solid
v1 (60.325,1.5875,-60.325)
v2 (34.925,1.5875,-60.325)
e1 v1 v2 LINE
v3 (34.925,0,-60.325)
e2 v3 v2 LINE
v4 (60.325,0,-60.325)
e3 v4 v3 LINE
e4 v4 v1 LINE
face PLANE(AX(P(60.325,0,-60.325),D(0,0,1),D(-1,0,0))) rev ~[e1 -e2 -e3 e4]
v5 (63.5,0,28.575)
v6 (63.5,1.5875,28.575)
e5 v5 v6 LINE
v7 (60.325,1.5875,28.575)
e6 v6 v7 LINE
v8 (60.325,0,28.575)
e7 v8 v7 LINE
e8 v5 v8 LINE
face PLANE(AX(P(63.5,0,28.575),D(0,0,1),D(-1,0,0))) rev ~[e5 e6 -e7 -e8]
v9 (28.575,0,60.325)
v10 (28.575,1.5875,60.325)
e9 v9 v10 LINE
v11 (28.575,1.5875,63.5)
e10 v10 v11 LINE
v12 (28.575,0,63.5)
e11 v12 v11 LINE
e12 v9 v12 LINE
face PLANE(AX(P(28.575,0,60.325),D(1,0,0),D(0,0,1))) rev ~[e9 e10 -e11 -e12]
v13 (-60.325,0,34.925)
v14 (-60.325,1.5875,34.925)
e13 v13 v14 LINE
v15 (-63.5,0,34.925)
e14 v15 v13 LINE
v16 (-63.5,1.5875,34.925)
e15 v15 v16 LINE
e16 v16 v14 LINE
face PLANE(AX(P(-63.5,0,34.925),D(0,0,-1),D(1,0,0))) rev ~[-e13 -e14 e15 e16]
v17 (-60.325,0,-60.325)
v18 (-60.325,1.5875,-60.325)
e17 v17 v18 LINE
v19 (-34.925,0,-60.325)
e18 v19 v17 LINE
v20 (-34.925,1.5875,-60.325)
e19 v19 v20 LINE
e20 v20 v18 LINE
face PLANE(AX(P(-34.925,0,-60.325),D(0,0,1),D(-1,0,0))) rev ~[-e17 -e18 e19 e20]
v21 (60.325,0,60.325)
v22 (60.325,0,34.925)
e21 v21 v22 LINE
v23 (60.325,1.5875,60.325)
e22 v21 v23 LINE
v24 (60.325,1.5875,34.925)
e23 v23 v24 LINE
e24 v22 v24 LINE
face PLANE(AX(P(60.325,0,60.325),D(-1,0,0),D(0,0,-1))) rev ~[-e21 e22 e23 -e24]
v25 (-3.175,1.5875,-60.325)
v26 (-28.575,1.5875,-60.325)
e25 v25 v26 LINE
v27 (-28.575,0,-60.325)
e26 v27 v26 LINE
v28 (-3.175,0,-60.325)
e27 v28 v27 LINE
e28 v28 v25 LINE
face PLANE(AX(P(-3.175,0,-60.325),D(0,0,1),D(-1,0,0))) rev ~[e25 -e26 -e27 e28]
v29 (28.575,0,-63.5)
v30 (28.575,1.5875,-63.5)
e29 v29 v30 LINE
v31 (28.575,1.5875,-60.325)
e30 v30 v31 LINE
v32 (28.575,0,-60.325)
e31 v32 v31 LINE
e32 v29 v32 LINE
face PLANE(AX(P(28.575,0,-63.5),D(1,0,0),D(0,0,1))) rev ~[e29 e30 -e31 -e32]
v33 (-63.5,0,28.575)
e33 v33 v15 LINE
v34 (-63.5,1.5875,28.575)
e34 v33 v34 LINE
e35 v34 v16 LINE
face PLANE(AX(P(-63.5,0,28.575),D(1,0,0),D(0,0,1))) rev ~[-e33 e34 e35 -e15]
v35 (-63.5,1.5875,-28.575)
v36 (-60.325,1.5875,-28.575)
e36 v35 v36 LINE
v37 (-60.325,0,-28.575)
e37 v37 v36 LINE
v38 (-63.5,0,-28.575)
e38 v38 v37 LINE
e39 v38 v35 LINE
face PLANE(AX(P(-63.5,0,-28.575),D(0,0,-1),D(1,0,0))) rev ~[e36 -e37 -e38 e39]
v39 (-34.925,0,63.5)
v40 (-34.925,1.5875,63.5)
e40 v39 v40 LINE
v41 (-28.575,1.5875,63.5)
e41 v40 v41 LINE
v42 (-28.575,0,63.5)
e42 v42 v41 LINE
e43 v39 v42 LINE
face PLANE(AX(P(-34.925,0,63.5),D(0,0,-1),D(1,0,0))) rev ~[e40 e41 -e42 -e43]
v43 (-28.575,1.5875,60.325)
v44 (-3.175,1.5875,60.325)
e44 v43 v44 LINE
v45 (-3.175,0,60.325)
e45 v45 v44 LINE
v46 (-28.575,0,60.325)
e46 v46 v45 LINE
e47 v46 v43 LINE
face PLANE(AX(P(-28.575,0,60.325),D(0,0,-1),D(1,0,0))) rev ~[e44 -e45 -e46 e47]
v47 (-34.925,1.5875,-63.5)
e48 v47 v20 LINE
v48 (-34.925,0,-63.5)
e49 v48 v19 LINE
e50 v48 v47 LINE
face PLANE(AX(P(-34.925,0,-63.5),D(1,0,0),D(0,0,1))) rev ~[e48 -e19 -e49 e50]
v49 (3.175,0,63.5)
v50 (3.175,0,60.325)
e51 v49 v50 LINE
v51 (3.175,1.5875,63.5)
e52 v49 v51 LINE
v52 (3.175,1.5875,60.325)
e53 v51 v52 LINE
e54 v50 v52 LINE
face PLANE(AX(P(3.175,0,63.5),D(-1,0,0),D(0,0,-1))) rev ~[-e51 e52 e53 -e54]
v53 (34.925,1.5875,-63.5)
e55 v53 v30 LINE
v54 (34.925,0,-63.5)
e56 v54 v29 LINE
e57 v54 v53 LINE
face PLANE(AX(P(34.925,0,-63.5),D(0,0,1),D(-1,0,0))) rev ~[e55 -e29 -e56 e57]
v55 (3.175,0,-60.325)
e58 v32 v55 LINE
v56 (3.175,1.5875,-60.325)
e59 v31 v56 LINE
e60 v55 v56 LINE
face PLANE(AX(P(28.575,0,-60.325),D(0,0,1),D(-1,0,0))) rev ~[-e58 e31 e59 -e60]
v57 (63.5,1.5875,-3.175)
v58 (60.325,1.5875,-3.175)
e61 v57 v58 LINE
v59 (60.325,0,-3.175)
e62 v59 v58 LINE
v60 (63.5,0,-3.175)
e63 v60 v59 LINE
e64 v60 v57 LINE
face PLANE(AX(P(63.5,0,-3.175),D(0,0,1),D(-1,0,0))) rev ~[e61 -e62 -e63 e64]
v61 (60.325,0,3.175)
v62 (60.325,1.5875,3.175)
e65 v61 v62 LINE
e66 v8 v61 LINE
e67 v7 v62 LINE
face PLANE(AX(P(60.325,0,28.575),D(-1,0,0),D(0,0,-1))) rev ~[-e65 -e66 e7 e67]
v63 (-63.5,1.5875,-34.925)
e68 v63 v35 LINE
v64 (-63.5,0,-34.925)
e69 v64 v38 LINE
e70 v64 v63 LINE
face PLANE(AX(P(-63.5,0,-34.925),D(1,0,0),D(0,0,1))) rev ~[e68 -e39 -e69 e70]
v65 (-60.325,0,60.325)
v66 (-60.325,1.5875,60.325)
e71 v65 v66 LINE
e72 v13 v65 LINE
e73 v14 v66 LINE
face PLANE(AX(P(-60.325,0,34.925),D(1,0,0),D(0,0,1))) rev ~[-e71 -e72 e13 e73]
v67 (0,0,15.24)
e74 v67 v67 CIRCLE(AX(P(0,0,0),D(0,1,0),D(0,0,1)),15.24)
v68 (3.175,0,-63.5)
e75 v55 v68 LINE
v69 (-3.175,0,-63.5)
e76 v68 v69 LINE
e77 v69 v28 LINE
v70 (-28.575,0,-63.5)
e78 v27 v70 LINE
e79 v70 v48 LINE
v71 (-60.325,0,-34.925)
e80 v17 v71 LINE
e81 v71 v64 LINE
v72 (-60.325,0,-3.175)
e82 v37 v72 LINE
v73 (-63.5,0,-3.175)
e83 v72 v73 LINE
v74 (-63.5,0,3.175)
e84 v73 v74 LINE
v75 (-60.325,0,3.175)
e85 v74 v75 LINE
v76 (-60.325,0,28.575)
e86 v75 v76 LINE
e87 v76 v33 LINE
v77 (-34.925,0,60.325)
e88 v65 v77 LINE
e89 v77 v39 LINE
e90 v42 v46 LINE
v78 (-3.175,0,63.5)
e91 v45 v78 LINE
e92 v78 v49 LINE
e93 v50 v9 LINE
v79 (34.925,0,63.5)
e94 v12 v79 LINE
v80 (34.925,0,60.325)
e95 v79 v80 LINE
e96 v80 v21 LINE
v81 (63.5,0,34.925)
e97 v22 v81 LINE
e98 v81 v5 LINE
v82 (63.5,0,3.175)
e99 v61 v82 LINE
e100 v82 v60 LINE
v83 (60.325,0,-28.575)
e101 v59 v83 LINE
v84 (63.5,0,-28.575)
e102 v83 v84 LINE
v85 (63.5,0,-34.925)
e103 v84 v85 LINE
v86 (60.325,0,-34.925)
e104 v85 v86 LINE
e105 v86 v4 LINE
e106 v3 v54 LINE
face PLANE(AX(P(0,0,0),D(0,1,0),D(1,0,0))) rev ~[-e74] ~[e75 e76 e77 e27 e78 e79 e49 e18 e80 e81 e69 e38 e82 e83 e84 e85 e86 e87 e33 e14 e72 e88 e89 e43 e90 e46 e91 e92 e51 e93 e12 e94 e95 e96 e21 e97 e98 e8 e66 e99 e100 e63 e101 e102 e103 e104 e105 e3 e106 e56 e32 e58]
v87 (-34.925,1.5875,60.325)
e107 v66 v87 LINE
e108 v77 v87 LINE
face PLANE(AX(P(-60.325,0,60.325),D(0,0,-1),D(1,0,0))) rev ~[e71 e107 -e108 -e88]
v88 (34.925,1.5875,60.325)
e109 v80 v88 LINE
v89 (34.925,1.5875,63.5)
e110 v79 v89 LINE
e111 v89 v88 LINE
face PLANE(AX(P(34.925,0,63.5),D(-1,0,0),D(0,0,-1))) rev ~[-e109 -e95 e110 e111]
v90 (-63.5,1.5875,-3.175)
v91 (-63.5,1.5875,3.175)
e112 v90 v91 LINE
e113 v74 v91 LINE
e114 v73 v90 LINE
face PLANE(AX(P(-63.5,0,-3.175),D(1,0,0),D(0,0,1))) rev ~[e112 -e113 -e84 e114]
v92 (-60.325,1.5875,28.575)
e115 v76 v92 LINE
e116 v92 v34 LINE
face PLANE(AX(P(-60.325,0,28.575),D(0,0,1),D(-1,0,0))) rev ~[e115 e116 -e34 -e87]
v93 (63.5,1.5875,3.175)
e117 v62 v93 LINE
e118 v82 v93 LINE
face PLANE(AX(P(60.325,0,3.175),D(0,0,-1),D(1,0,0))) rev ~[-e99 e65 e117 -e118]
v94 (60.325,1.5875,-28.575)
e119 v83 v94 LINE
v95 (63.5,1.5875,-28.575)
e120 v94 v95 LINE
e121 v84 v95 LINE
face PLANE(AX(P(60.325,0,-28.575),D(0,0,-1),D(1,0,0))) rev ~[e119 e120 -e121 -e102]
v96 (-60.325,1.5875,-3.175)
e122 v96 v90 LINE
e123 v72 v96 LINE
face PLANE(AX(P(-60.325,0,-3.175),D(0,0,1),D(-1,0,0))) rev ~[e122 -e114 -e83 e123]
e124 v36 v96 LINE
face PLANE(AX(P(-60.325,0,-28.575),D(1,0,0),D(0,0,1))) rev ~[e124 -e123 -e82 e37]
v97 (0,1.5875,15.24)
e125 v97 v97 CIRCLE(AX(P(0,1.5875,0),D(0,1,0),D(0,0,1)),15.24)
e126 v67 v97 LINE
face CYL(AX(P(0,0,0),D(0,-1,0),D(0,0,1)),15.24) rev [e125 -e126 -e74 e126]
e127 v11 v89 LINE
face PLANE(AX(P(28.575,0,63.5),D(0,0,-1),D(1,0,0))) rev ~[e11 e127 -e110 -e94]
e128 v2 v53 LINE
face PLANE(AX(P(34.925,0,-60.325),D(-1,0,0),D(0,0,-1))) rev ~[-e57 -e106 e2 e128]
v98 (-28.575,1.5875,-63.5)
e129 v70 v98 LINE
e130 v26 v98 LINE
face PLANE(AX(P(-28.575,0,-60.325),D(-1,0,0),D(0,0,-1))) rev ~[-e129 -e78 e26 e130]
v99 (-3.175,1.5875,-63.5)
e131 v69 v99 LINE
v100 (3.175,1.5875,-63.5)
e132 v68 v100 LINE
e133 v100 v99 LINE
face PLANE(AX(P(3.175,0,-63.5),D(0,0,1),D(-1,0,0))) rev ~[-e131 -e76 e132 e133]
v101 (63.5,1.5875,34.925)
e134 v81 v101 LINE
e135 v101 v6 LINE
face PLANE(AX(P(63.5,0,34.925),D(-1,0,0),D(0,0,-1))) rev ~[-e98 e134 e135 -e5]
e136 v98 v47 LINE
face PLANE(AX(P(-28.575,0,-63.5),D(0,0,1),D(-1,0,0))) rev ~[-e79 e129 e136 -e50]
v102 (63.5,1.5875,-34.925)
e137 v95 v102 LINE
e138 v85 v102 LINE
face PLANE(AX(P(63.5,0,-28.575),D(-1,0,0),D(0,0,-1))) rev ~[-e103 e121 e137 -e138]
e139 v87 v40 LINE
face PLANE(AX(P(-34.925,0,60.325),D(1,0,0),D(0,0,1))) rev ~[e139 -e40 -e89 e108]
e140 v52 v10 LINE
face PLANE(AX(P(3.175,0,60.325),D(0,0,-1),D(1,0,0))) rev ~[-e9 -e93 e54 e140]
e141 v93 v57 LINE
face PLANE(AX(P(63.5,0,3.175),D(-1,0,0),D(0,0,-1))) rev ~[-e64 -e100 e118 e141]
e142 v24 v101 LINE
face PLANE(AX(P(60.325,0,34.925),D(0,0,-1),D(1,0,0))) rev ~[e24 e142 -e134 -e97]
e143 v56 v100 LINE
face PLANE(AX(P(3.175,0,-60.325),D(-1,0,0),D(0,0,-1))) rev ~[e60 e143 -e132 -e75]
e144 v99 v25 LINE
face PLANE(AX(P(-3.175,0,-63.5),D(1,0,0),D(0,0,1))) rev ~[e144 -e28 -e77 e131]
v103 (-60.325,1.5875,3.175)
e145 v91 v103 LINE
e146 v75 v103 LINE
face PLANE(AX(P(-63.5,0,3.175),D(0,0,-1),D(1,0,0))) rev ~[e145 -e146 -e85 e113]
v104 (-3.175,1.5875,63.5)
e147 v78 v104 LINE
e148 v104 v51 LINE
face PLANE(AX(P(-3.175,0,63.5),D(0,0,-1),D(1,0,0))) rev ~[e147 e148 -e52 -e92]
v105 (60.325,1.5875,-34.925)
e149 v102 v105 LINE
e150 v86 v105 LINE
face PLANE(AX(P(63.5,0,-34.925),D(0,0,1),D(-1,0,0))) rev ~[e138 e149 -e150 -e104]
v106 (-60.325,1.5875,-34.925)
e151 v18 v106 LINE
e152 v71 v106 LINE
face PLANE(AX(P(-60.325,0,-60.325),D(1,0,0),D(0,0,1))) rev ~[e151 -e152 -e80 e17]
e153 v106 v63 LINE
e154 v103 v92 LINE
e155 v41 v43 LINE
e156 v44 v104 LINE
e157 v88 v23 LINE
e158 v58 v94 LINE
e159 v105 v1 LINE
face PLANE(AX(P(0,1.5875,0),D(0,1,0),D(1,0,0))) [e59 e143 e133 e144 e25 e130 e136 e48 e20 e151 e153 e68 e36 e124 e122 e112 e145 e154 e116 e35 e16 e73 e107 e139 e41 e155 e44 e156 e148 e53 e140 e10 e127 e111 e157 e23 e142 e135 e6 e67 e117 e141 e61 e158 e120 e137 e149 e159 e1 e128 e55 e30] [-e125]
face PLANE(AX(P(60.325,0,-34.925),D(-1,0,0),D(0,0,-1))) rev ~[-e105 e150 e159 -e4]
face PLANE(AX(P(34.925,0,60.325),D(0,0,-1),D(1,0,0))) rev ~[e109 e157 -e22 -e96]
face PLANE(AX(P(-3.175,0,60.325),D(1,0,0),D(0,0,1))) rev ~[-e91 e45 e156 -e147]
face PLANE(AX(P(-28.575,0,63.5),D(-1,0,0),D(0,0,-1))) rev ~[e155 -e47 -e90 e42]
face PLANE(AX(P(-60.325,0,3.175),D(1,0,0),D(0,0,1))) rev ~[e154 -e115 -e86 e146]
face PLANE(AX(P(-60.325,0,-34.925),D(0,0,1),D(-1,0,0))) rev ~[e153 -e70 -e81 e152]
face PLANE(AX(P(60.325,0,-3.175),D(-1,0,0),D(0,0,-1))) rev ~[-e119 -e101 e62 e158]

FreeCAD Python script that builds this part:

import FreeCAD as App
import Part
import Sketcher

V = App.Vector
Q = App.Units.Quantity

doc = App.newDocument("Part")
body = doc.addObject("PartDesign::Body", "Body")

# Sketch on XZ plane
sketch1 = body.newObject("Sketcher::SketchObject", "Sketch")
sketch1.AttachmentSupport = (doc.getObject("XZ_Plane"), [""])
sketch1.MapMode = "FlatFace"
sketch1.addGeometry([
    Part.LineSegment(V(3.175, -63.5, 0), V(-3.175, -63.5, 0)),  # 0
    Part.LineSegment(V(-3.175, -63.5, 0), V(-3.175, -60.325, 0)),  # 1
    Part.LineSegment(V(-3.175, -60.325, 0), V(-28.575, -60.325, 0)),  # 2
    Part.LineSegment(V(-28.575, -60.325, 0), V(-28.575, -63.5, 0)),  # 3
    Part.LineSegment(V(-28.575, -63.5, 0), V(-34.925, -63.5, 0)),  # 4
    Part.LineSegment(V(-34.925, -63.5, 0), V(-34.925, -60.325, 0)),  # 5
    Part.LineSegment(V(-34.925, -60.325, 0), V(-60.325, -60.325, 0)),  # 6
    Part.LineSegment(V(-60.325, -60.325, 0), V(-60.325, -34.925, 0)),  # 7
    Part.LineSegment(V(-60.325, -34.925, 0), V(-63.5, -34.925, 0)),  # 8
    Part.LineSegment(V(-63.5, -34.925, 0), V(-63.5, -28.575, 0)),  # 9
    Part.LineSegment(V(-63.5, -28.575, 0), V(-60.325, -28.575, 0)),  # 10
    Part.LineSegment(V(-60.325, -28.575, 0), V(-60.325, -3.175, 0)),  # 11
    Part.LineSegment(V(-60.325, -3.175, 0), V(-63.5, -3.175, 0)),  # 12
    Part.LineSegment(V(-63.5, -3.175, 0), V(-63.5, 3.175, 0)),  # 13
    Part.LineSegment(V(-63.5, 3.175, 0), V(-60.325, 3.175, 0)),  # 14
    Part.LineSegment(V(-60.325, 3.175, 0), V(-60.325, 28.575, 0)),  # 15
    Part.LineSegment(V(-60.325, 28.575, 0), V(-63.5, 28.575, 0)),  # 16
    Part.LineSegment(V(-63.5, 28.575, 0), V(-63.5, 34.925, 0)),  # 17
    Part.LineSegment(V(-63.5, 34.925, 0), V(-60.325, 34.925, 0)),  # 18
    Part.LineSegment(V(-60.325, 34.925, 0), V(-60.325, 60.325, 0)),  # 19
    Part.LineSegment(V(-60.325, 60.325, 0), V(-34.925, 60.325, 0)),  # 20
    Part.LineSegment(V(-34.925, 60.325, 0), V(-34.925, 63.5, 0)),  # 21
    Part.LineSegment(V(-34.925, 63.5, 0), V(-28.575, 63.5, 0)),  # 22
    Part.LineSegment(V(-28.575, 63.5, 0), V(-28.575, 60.325, 0)),  # 23
    Part.LineSegment(V(-28.575, 60.325, 0), V(-3.175, 60.325, 0)),  # 24
    Part.LineSegment(V(-3.175, 60.325, 0), V(-3.175, 63.5, 0)),  # 25
    Part.LineSegment(V(-3.175, 63.5, 0), V(3.175, 63.5, 0)),  # 26
    Part.LineSegment(V(3.175, 63.5, 0), V(3.175, 60.325, 0)),  # 27
    Part.LineSegment(V(3.175, 60.325, 0), V(28.575, 60.325, 0)),  # 28
    Part.LineSegment(V(28.575, 60.325, 0), V(28.575, 63.5, 0)),  # 29
    Part.LineSegment(V(28.575, 63.5, 0), V(34.925, 63.5, 0)),  # 30
    Part.LineSegment(V(34.925, 63.5, 0), V(34.925, 60.325, 0)),  # 31
    Part.LineSegment(V(34.925, 60.325, 0), V(60.325, 60.325, 0)),  # 32
    Part.LineSegment(V(60.325, 60.325, 0), V(60.325, 34.925, 0)),  # 33
    Part.LineSegment(V(60.325, 34.925, 0), V(63.5, 34.925, 0)),  # 34
    Part.LineSegment(V(63.5, 34.925, 0), V(63.5, 28.575, 0)),  # 35
    Part.LineSegment(V(63.5, 28.575, 0), V(60.325, 28.575, 0)),  # 36
    Part.LineSegment(V(60.325, 28.575, 0), V(60.325, 3.175, 0)),  # 37
    Part.LineSegment(V(60.325, 3.175, 0), V(63.5, 3.175, 0)),  # 38
    Part.LineSegment(V(63.5, 3.175, 0), V(63.5, -3.175, 0)),  # 39
    Part.LineSegment(V(63.5, -3.175, 0), V(60.325, -3.175, 0)),  # 40
    Part.LineSegment(V(60.325, -3.175, 0), V(60.325, -28.575, 0)),  # 41
    Part.LineSegment(V(60.325, -28.575, 0), V(63.5, -28.575, 0)),  # 42
    Part.LineSegment(V(63.5, -28.575, 0), V(63.5, -34.925, 0)),  # 43
    Part.LineSegment(V(63.5, -34.925, 0), V(60.325, -34.925, 0)),  # 44
    Part.LineSegment(V(60.325, -34.925, 0), V(60.325, -60.325, 0)),  # 45
    Part.LineSegment(V(60.325, -60.325, 0), V(34.925, -60.325, 0)),  # 46
    Part.LineSegment(V(34.925, -60.325, 0), V(34.925, -63.5, 0)),  # 47
    Part.LineSegment(V(34.925, -63.5, 0), V(28.575, -63.5, 0)),  # 48
    Part.LineSegment(V(28.575, -63.5, 0), V(28.575, -60.325, 0)),  # 49
    Part.LineSegment(V(28.575, -60.325, 0), V(3.175, -60.325, 0)),  # 50
    Part.LineSegment(V(3.175, -60.325, 0), V(3.175, -63.5, 0)),  # 51
    Part.Circle(V(0, 0, 0), V(0, 0, 1), 15.24),  # 52
], False)
sketch1.addConstraint([
    Sketcher.Constraint("Coincident", 0, 2, 1, 1),
    Sketcher.Constraint("Coincident", 1, 2, 2, 1),
    Sketcher.Constraint("Coincident", 2, 2, 3, 1),
    Sketcher.Constraint("Coincident", 3, 2, 4, 1),
    Sketcher.Constraint("Coincident", 4, 2, 5, 1),
    Sketcher.Constraint("Coincident", 5, 2, 6, 1),
    Sketcher.Constraint("Coincident", 6, 2, 7, 1),
    Sketcher.Constraint("Coincident", 7, 2, 8, 1),
    Sketcher.Constraint("Coincident", 8, 2, 9, 1),
    Sketcher.Constraint("Coincident", 9, 2, 10, 1),
    Sketcher.Constraint("Coincident", 10, 2, 11, 1),
    Sketcher.Constraint("Coincident", 11, 2, 12, 1),
    Sketcher.Constraint("Coincident", 12, 2, 13, 1),
    Sketcher.Constraint("Coincident", 13, 2, 14, 1),
    Sketcher.Constraint("Coincident", 14, 2, 15, 1),
    Sketcher.Constraint("Coincident", 15, 2, 16, 1),
    Sketcher.Constraint("Coincident", 16, 2, 17, 1),
    Sketcher.Constraint("Coincident", 17, 2, 18, 1),
    Sketcher.Constraint("Coincident", 18, 2, 19, 1),
    Sketcher.Constraint("Coincident", 19, 2, 20, 1),
    Sketcher.Constraint("Coincident", 20, 2, 21, 1),
    Sketcher.Constraint("Coincident", 21, 2, 22, 1),
    Sketcher.Constraint("Coincident", 22, 2, 23, 1),
    Sketcher.Constraint("Coincident", 23, 2, 24, 1),
    Sketcher.Constraint("Coincident", 24, 2, 25, 1),
    Sketcher.Constraint("Coincident", 25, 2, 26, 1),
    Sketcher.Constraint("Coincident", 26, 2, 27, 1),
    Sketcher.Constraint("Coincident", 27, 2, 28, 1),
    Sketcher.Constraint("Coincident", 28, 2, 29, 1),
    Sketcher.Constraint("Coincident", 29, 2, 30, 1),
    Sketcher.Constraint("Coincident", 30, 2, 31, 1),
    Sketcher.Constraint("Coincident", 31, 2, 32, 1),
    Sketcher.Constraint("Coincident", 32, 2, 33, 1),
    Sketcher.Constraint("Coincident", 33, 2, 34, 1),
    Sketcher.Constraint("Coincident", 34, 2, 35, 1),
    Sketcher.Constraint("Coincident", 35, 2, 36, 1),
    Sketcher.Constraint("Coincident", 36, 2, 37, 1),
    Sketcher.Constraint("Coincident", 37, 2, 38, 1),
    Sketcher.Constraint("Coincident", 38, 2, 39, 1),
    Sketcher.Constraint("Coincident", 39, 2, 40, 1),
    Sketcher.Constraint("Coincident", 40, 2, 41, 1),
    Sketcher.Constraint("Coincident", 41, 2, 42, 1),
    Sketcher.Constraint("Coincident", 42, 2, 43, 1),
    Sketcher.Constraint("Coincident", 43, 2, 44, 1),
    Sketcher.Constraint("Coincident", 44, 2, 45, 1),
    Sketcher.Constraint("Coincident", 45, 2, 46, 1),
    Sketcher.Constraint("Coincident", 46, 2, 47, 1),
    Sketcher.Constraint("Coincident", 47, 2, 48, 1),
    Sketcher.Constraint("Coincident", 48, 2, 49, 1),
    Sketcher.Constraint("Coincident", 49, 2, 50, 1),
    Sketcher.Constraint("Coincident", 50, 2, 51, 1),
    Sketcher.Constraint("Coincident", 51, 2, 0, 1),
    Sketcher.Constraint("Horizontal", 0),
    Sketcher.Constraint("Vertical", 1),
    Sketcher.Constraint("Horizontal", 2),
    Sketcher.Constraint("Vertical", 3),
    Sketcher.Constraint("Horizontal", 4),
    Sketcher.Constraint("Vertical", 5),
    Sketcher.Constraint("Horizontal", 6),
    Sketcher.Constraint("Vertical", 7),
    Sketcher.Constraint("Horizontal", 8),
    Sketcher.Constraint("Vertical", 9),
    Sketcher.Constraint("Horizontal", 10),
    Sketcher.Constraint("Vertical", 11),
    Sketcher.Constraint("Horizontal", 12),
    Sketcher.Constraint("Vertical", 13),
    Sketcher.Constraint("Horizontal", 14),
    Sketcher.Constraint("Vertical", 15),
    Sketcher.Constraint("Horizontal", 16),
    Sketcher.Constraint("Vertical", 17),
    Sketcher.Constraint("Horizontal", 18),
    Sketcher.Constraint("Vertical", 19),
    Sketcher.Constraint("Horizontal", 20),
    Sketcher.Constraint("Vertical", 21),
    Sketcher.Constraint("Horizontal", 22),
    Sketcher.Constraint("Vertical", 23),
    Sketcher.Constraint("Horizontal", 24),
    Sketcher.Constraint("Vertical", 25),
    Sketcher.Constraint("Horizontal", 26),
    Sketcher.Constraint("Vertical", 27),
    Sketcher.Constraint("Horizontal", 28),
    Sketcher.Constraint("Vertical", 29),
    Sketcher.Constraint("Horizontal", 30),
    Sketcher.Constraint("Vertical", 31),
    Sketcher.Constraint("Horizontal", 32),
    Sketcher.Constraint("Vertical", 33),
    Sketcher.Constraint("Horizontal", 34),
    Sketcher.Constraint("Vertical", 35),
    Sketcher.Constraint("Horizontal", 36),
    Sketcher.Constraint("Vertical", 37),
    Sketcher.Constraint("Horizontal", 38),
    Sketcher.Constraint("Vertical", 39),
    Sketcher.Constraint("Horizontal", 40),
    Sketcher.Constraint("Vertical", 41),
    Sketcher.Constraint("Horizontal", 42),
    Sketcher.Constraint("Vertical", 43),
    Sketcher.Constraint("Horizontal", 44),
    Sketcher.Constraint("Vertical", 45),
    Sketcher.Constraint("Horizontal", 46),
    Sketcher.Constraint("Vertical", 47),
    Sketcher.Constraint("Horizontal", 48),
    Sketcher.Constraint("Vertical", 49),
    Sketcher.Constraint("Horizontal", 50),
    Sketcher.Constraint("Vertical", 51),
    Sketcher.Constraint("Coincident", 52, 3, -1, 1),
    Sketcher.Constraint("Symmetric", 0, 2, 26, 2, -1, 1),
    Sketcher.Constraint("Symmetric", 2, 2, 28, 2, -1, 1),
    Sketcher.Constraint("Symmetric", 4, 2, 30, 2, -1, 1),
    Sketcher.Constraint("Symmetric", 6, 2, 32, 2, -1, 1),
    Sketcher.Constraint("Symmetric", 8, 2, 34, 2, -1, 1),
    Sketcher.Constraint("Symmetric", 10, 2, 36, 2, -1, 1),
    Sketcher.Constraint("Symmetric", 12, 2, 38, 2, -1, 1),
    Sketcher.Constraint("Symmetric", 14, 2, 40, 2, -1, 1),
    Sketcher.Constraint("Symmetric", 16, 2, 42, 2, -1, 1),
    Sketcher.Constraint("Symmetric", 18, 2, 44, 2, -1, 1),
    Sketcher.Constraint("Symmetric", 20, 2, 46, 2, -1, 1),
    Sketcher.Constraint("Symmetric", 22, 2, 48, 2, -1, 1),
    Sketcher.Constraint("Symmetric", 24, 2, 50, 2, -1, 1),
    Sketcher.Constraint("Symmetric", 24, 2, 27, 2, -2),
    Sketcher.Constraint("Symmetric", 22, 2, 29, 2, -2),
    Sketcher.Constraint("Symmetric", 20, 2, 31, 2, -2),
    Sketcher.Constraint("Symmetric", 18, 2, 33, 2, -2),
    Sketcher.Constraint("Symmetric", 16, 2, 35, 2, -2),
    Sketcher.Constraint("Symmetric", 14, 2, 37, 2, -2),
    Sketcher.Constraint("Horizontal", 0, 2, 3, 2),
    Sketcher.Constraint("Horizontal", 2, 2, 5, 2),
    Sketcher.Constraint("Vertical", 7, 2, 10, 2),
    Sketcher.Constraint("Vertical", 9, 2, 12, 2),
    Sketcher.Constraint("Equal", 0, 4),
    Sketcher.Constraint("Equal", 2, 6),
    Sketcher.Constraint("Equal", 44, 1),
    Sketcher.Constraint("Equal", 50, 7),
    Sketcher.Constraint("Equal", 48, 9),
    Sketcher.Constraint("Equal", 7, 11),
    Sketcher.Constraint("Equal", 9, 13),
    Sketcher.Constraint("Diameter", 52, Q("1.2 in")),
    Sketcher.Constraint("DistanceX", 2, 2, 2, 1, Q("1 in")),
    Sketcher.Constraint("DistanceX", 0, 2, 0, 1, Q("0.25 in")),
    Sketcher.Constraint("DistanceY", 0, 2, -1, 1, Q("2.5 in")),
])
pad1 = body.newObject("PartDesign::Pad", "Pad")
pad1.Profile = sketch1
pad1.Length = Q("0.0625 in")
pad1.Reversed = True

doc.recompute()
